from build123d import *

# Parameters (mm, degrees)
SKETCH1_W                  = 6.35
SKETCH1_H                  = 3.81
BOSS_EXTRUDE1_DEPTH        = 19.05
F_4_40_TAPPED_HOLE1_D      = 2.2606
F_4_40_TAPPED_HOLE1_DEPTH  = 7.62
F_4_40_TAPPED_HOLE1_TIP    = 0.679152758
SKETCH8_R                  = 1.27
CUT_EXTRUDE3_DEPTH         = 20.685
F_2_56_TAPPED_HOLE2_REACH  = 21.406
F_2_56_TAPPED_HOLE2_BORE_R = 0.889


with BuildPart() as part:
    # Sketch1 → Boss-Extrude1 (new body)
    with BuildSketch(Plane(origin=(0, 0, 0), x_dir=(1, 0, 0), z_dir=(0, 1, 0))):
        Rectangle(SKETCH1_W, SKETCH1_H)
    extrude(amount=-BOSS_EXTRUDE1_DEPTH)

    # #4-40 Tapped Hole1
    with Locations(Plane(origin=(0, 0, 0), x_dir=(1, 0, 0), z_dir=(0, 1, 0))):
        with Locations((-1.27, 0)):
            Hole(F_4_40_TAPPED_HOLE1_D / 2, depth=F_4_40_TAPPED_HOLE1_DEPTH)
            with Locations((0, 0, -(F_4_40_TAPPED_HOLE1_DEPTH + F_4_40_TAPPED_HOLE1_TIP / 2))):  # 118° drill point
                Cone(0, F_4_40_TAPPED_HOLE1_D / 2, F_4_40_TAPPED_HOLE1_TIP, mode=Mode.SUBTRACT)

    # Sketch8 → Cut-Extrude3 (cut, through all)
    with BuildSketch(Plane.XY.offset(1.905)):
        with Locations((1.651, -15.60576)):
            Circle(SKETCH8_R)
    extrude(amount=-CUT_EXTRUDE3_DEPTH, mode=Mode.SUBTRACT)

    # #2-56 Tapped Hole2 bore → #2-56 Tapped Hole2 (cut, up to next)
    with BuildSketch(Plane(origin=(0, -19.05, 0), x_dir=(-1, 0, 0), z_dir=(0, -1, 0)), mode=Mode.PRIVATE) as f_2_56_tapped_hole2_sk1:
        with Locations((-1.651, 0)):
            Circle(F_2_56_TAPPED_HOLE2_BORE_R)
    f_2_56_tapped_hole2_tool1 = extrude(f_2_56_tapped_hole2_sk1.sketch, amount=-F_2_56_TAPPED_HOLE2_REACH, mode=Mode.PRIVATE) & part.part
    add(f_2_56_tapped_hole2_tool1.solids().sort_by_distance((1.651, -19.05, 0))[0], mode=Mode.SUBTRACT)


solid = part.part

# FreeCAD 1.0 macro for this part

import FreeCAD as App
import Part
import Sketcher
from FreeCAD import Vector
Q = App.Units.Quantity

doc = App.newDocument("Part")
params = doc.addObject("Spreadsheet::Sheet", "Params")
for row, (alias, value) in enumerate([
    ("sketch1_width", "0.25 in"),
    ("sketch1_height", "0.15 in"),
    ("pad1_length", "0.75 in"),
    ("sketch2_diameter", "0.089 in"),
    ("hole_diameter", "0.089 in"),
    ("hole_depth", "0.3 in"),
    ("sketch3_diameter", "0.1 in"),
    ("sketch4_diameter", "0.07 in"),
], start=1):
    params.set(f"A{row}", alias)
    params.set(f"B{row}", "=" + value)
    params.setAlias(f"B{row}", alias)

body = doc.addObject("PartDesign::Body", "Body")

# Sketch on XZ plane
sketch1 = body.newObject("Sketcher::SketchObject", "Sketch")
sketch1.AttachmentSupport = (doc.getObject("XZ_Plane"), [""])
sketch1.MapMode = "FlatFace"
sketch1.addGeometry([
    Part.LineSegment(Vector(-3.175, -1.905, 0), Vector(-3.175, 1.905, 0)),
    Part.LineSegment(Vector(-3.175, 1.905, 0), Vector(3.175, 1.905, 0)),
    Part.LineSegment(Vector(3.175, 1.905, 0), Vector(3.175, -1.905, 0)),
    Part.LineSegment(Vector(3.175, -1.905, 0), Vector(-3.175, -1.905, 0)),
], False)
sketch1.addConstraint([
    Sketcher.Constraint("Coincident", 0, 2, 1, 1),
    Sketcher.Constraint("Coincident", 1, 2, 2, 1),
    Sketcher.Constraint("Coincident", 2, 2, 3, 1),
    Sketcher.Constraint("Coincident", 3, 2, 0, 1),
    Sketcher.Constraint("Vertical", 0),
    Sketcher.Constraint("Horizontal", 1),
    Sketcher.Constraint("Vertical", 2),
    Sketcher.Constraint("Horizontal", 3),
    Sketcher.Constraint("Symmetric", 0, 2, 2, 2, -1, 1),
    Sketcher.Constraint("DistanceX", 1, 1, 1, 2, Q("0.25 in")),
    Sketcher.Constraint("DistanceY", 0, 1, 0, 2, Q("0.15 in")),
])
sketch1.setExpression("Constraints[9]", "Params.sketch1_width")
sketch1.setExpression("Constraints[10]", "Params.sketch1_height")
pad1 = body.newObject("PartDesign::Pad", "Pad")
pad1.Profile = sketch1
pad1.setExpression("Length", "Params.pad1_length")

# Sketch on XZ plane
sketch2 = body.newObject("Sketcher::SketchObject", "Sketch001")
sketch2.AttachmentSupport = (doc.getObject("XZ_Plane"), [""])
sketch2.MapMode = "FlatFace"
sketch2.addGeometry(Part.Circle(Vector(-1.27, 0, 0), Vector(0, 0, 1), 1.1303), False)
sketch2.addConstraint([
    Sketcher.Constraint("PointOnObject", 0, 3, -1),
    Sketcher.Constraint("Diameter", 0, Q("0.089 in")),
    Sketcher.Constraint("DistanceX", 0, 3, -1, 1, Q("0.05 in")),
])
sketch2.setExpression("Constraints[1]", "Params.sketch2_diameter")
doc.recompute()
hole = body.newObject("PartDesign::Hole", "Hole")
hole.Profile = sketch2
hole.ThreadType = "None"
hole.setExpression("Diameter", "Params.hole_diameter")
hole.DepthType = "Dimension"
hole.setExpression("Depth", "Params.hole_depth")
hole.DrillPoint = "Angled"
hole.DrillPointAngle = 118
hole.Reversed = True

# Sketch on XY plane
sketch3 = body.newObject("Sketcher::SketchObject", "Sketch002")
sketch3.AttachmentSupport = (doc.getObject("XY_Plane"), [""])
sketch3.MapMode = "FlatFace"
sketch3.AttachmentOffset = App.Placement(Vector(0, 0, 0.075 * 25.4), App.Rotation())
sketch3.addGeometry(Part.Circle(Vector(1.651, -15.60576, 0), Vector(0, 0, 1), 1.27), False)
sketch3.addConstraint([
    Sketcher.Constraint("Diameter", 0, Q("0.1 in")),
    Sketcher.Constraint("DistanceX", -1, 1, 0, 3, Q("0.065 in")),
    Sketcher.Constraint("DistanceY", 0, 3, -1, 1, Q("0.6144 in")),
])
sketch3.setExpression("Constraints[0]", "Params.sketch3_diameter")
pocket1 = body.newObject("PartDesign::Pocket", "Pocket")
pocket1.Profile = sketch3
pocket1.Type = "ThroughAll"

# Sketch on XZ plane
sketch4 = body.newObject("Sketcher::SketchObject", "Sketch003")
sketch4.AttachmentSupport = (doc.getObject("XZ_Plane"), [""])
sketch4.MapMode = "FlatFace"
sketch4.AttachmentOffset = App.Placement(Vector(0, 0, 0.75 * 25.4), App.Rotation())
sketch4.addGeometry(Part.Circle(Vector(1.651, 0, 0), Vector(0, 0, 1), 0.889), False)
sketch4.addConstraint([
    Sketcher.Constraint("PointOnObject", 0, 3, -1),
    Sketcher.Constraint("Diameter", 0, Q("0.07 in")),
    Sketcher.Constraint("DistanceX", -1, 1, 0, 3, Q("0.065 in")),
])
sketch4.setExpression("Constraints[1]", "Params.sketch4_diameter")
pocket2 = body.newObject("PartDesign::Pocket", "Pocket001")
pocket2.Profile = sketch4
pocket2.Type = "UpToFirst"

doc.recompute()
